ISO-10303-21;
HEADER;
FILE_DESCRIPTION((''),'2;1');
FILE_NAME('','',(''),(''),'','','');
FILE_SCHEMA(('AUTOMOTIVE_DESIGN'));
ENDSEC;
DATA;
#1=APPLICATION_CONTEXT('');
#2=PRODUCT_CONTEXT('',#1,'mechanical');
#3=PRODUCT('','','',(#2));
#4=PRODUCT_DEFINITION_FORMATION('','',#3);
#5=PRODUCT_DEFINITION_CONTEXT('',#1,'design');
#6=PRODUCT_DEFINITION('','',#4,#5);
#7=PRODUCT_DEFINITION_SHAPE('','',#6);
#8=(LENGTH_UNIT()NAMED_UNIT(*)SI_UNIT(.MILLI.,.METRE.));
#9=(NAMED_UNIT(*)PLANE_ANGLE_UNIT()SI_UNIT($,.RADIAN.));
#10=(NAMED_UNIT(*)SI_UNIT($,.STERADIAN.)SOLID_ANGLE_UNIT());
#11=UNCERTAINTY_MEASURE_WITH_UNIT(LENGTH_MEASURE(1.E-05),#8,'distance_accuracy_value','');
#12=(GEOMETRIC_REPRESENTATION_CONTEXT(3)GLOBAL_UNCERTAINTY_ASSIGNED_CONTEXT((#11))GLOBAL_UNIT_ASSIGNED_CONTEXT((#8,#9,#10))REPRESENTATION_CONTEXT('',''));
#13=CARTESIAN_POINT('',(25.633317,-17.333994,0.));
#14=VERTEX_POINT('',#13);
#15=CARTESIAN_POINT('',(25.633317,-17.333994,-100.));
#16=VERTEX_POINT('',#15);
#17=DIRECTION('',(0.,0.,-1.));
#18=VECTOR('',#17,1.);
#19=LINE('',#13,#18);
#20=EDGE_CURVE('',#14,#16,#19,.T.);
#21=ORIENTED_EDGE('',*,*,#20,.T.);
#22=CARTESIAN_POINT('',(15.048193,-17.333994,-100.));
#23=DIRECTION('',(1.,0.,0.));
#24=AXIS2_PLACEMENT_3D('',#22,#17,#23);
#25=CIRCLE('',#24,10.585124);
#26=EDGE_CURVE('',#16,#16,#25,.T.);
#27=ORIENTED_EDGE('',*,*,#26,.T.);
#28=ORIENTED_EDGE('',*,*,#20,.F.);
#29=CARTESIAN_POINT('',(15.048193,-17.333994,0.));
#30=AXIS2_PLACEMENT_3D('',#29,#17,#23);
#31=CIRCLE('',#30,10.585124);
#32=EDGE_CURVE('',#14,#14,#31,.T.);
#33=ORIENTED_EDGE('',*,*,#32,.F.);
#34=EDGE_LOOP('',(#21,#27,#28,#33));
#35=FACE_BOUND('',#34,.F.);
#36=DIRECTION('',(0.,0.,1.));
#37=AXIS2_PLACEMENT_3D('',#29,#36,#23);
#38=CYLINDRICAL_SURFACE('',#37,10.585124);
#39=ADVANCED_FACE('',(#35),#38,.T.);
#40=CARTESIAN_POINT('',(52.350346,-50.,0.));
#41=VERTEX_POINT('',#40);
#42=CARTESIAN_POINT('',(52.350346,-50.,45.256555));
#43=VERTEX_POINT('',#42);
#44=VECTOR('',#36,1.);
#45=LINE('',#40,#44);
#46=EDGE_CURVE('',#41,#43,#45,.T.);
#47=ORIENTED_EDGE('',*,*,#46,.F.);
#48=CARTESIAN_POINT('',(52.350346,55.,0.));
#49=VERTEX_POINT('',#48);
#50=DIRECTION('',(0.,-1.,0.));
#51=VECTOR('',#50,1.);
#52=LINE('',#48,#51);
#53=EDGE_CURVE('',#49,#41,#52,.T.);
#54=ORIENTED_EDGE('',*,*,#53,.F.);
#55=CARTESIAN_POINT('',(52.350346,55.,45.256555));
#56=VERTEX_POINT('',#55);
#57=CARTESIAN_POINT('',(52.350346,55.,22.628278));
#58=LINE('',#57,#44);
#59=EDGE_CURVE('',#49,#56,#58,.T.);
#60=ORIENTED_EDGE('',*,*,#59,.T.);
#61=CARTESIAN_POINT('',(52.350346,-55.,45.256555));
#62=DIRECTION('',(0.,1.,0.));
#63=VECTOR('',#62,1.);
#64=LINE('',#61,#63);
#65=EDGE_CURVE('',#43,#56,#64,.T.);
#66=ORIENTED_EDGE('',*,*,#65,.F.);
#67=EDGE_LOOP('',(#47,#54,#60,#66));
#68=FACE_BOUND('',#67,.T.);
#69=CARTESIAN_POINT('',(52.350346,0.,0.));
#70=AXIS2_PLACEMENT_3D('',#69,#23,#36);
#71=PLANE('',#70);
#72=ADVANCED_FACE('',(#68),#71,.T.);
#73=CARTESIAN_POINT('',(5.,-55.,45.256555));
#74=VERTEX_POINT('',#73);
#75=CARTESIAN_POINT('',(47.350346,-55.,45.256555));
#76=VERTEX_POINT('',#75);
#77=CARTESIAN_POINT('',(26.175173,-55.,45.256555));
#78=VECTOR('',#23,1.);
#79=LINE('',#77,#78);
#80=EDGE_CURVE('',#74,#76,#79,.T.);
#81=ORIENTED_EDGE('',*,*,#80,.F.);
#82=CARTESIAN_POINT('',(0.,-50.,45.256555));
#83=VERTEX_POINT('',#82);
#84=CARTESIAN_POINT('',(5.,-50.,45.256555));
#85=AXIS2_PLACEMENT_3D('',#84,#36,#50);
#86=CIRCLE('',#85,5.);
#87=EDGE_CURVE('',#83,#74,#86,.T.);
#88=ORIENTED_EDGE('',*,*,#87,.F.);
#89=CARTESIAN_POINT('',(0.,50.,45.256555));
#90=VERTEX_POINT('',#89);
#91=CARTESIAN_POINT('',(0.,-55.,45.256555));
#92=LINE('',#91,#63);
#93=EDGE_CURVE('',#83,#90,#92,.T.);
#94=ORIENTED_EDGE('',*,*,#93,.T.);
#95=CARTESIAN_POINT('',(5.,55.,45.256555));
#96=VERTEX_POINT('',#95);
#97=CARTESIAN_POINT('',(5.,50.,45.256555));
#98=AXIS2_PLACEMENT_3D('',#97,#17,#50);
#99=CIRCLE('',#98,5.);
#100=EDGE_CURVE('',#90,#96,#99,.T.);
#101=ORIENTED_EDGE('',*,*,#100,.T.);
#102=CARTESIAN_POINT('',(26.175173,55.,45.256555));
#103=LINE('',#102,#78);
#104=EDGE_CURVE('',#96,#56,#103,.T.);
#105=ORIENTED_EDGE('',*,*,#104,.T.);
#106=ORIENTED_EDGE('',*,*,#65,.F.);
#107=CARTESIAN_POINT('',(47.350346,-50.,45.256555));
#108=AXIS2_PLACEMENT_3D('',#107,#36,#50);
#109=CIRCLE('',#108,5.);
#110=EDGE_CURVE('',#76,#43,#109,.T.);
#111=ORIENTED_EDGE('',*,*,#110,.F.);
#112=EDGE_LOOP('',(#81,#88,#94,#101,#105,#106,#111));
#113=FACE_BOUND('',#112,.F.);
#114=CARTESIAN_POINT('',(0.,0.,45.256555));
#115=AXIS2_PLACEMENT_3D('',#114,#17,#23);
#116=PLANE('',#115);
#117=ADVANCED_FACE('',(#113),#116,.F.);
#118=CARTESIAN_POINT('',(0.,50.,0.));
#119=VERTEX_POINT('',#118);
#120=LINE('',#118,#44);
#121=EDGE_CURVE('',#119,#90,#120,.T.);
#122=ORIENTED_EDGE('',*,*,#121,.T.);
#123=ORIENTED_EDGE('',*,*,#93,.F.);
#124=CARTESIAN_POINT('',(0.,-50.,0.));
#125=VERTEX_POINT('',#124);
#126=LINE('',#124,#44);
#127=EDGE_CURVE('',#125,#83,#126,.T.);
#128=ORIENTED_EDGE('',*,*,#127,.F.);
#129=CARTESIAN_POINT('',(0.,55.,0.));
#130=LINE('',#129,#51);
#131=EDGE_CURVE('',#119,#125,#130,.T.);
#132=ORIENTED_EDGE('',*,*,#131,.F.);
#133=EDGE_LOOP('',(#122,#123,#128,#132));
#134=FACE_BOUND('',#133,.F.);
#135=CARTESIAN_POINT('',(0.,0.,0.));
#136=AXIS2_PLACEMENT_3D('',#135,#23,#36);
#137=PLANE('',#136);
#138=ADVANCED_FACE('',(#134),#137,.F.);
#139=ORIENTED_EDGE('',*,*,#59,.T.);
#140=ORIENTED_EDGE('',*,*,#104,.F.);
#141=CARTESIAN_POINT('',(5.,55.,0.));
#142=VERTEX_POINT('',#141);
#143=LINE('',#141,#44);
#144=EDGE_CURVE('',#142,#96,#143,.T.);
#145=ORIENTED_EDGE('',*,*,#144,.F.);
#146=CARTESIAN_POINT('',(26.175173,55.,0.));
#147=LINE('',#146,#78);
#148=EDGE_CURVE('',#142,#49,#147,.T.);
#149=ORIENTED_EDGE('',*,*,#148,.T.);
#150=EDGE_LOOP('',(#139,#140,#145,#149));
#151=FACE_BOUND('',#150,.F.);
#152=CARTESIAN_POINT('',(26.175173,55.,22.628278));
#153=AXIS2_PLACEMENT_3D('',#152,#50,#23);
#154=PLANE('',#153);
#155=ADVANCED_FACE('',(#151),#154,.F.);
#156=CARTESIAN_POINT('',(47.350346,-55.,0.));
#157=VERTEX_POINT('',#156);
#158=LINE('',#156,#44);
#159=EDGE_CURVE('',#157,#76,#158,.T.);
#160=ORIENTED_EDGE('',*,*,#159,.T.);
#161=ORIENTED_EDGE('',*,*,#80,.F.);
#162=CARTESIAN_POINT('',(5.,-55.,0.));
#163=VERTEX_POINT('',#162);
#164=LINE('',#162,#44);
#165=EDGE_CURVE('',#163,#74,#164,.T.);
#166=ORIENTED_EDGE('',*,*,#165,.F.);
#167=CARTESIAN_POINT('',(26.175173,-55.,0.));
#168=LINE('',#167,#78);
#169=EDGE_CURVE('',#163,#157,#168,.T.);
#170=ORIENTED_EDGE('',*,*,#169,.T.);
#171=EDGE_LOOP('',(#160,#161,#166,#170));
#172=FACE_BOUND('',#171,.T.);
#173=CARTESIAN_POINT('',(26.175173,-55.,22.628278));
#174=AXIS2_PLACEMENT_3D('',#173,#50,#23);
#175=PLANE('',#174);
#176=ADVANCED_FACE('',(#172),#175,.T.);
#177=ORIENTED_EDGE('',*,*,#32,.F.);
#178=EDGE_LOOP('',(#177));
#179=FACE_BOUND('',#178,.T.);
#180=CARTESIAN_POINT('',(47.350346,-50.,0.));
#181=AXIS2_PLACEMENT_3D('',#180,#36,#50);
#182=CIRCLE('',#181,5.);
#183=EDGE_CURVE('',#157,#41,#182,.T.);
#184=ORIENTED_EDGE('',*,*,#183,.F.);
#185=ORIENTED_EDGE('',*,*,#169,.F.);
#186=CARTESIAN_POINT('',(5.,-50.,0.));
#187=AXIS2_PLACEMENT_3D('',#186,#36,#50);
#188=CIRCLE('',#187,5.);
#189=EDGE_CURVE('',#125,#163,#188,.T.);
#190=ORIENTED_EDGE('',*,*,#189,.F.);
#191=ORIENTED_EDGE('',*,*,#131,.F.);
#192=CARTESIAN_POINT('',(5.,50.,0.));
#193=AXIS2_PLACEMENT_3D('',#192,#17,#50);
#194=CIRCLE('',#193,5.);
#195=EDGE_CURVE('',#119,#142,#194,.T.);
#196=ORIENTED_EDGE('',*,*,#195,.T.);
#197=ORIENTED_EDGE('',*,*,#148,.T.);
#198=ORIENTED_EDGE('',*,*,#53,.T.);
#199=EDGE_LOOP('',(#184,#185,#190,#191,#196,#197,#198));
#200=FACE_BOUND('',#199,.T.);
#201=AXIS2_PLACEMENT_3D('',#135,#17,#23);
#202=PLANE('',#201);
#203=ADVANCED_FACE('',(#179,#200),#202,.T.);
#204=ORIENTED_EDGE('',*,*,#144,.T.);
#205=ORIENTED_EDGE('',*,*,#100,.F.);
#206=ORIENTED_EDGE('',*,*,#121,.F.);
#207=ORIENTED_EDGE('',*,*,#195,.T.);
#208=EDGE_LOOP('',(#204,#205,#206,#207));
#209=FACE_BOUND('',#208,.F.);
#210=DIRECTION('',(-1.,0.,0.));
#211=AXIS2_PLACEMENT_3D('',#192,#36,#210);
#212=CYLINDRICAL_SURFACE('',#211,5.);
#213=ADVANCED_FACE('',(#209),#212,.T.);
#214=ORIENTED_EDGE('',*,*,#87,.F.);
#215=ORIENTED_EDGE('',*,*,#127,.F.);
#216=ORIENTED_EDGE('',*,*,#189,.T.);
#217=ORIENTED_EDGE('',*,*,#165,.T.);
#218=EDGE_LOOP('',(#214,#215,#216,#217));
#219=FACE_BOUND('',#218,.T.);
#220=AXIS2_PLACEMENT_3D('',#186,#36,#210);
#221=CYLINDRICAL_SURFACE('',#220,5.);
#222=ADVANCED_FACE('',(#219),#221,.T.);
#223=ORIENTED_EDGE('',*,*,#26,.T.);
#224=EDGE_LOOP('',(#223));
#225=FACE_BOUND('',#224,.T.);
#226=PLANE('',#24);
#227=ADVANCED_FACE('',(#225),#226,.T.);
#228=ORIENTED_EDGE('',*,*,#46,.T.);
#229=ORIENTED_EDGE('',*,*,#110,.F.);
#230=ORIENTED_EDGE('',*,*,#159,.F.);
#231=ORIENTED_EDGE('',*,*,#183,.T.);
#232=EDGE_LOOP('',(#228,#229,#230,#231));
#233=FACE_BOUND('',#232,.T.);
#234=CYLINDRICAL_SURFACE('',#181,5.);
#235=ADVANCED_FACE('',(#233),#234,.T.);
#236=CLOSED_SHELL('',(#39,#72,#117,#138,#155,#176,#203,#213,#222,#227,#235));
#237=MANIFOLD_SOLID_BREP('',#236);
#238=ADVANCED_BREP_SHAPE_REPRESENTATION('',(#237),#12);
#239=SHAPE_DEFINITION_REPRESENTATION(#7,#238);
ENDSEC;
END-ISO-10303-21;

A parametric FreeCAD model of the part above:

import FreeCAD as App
import Part
import Sketcher
Q = App.Units.Quantity


def edges_at(feature, points):
    """Names of the edges that pass closest to the given points."""
    edges = feature.Shape.Edges
    near = lambda p: min(range(len(edges)), key=lambda i: edges[i].distToShape(Part.Vertex(*p))[0])
    return sorted({f"Edge{near(p) + 1}" for p in points})


def add_polygon(sketch, points):
    """Adds a closed chain of lines whose ends are joined by coincident constraints."""
    first, n = sketch.GeometryCount, len(points)
    for a, b in zip(points, points[1:] + points[:1]):
        sketch.addGeometry(Part.LineSegment(App.Vector(*a, 0), App.Vector(*b, 0)), False)
    for i in range(n):
        sketch.addConstraint(Sketcher.Constraint("Coincident", first + i, 2, first + (i + 1) % n, 1))

doc = App.newDocument("Part")
body = doc.addObject("PartDesign::Body", "Body")

# Sketch on XZ plane
sketch1 = body.newObject("Sketcher::SketchObject", "Sketch")
sketch1.AttachmentSupport = (doc.getObject("XZ_Plane"), [""])
sketch1.MapMode = "FlatFace"
add_polygon(sketch1, [(0, 45), (0, 0), (52, 0), (52, 45)])  # lines 0-3
sketch1.addConstraint(Sketcher.Constraint("Vertical", 0))
sketch1.addConstraint(Sketcher.Constraint("Horizontal", 1))
sketch1.addConstraint(Sketcher.Constraint("Vertical", 2))
sketch1.addConstraint(Sketcher.Constraint("Horizontal", 3))
sketch1.addConstraint(Sketcher.Constraint("Coincident", 0, 2, -1, 1))
sketch1.addConstraint(Sketcher.Constraint("DistanceX", 1, 1, 1, 2, Q("52.350346 mm")))
sketch1.addConstraint(Sketcher.Constraint("DistanceY", 0, 2, 0, 1, Q("45.256555 mm")))
pad1 = body.newObject("PartDesign::Pad", "Pad")
pad1.Profile = sketch1
pad1.Length = 110
pad1.Midplane = True
doc.recompute()

fillet = body.newObject("PartDesign::Fillet", "Fillet")
fillet.Base = (pad1, edges_at(pad1, [(52.35, -55, 22.628), (0, -55, 22.628), (0, 55, 22.628)]))
fillet.Radius = 5

# Sketch on XY plane
sketch2 = body.newObject("Sketcher::SketchObject", "Sketch001")
sketch2.AttachmentSupport = (doc.getObject("XY_Plane"), [""])
sketch2.MapMode = "FlatFace"
sketch2.addGeometry(Part.Circle(App.Vector(15, -17, 0), App.Vector(0, 0, 1), 11), False)
sketch2.addConstraint(Sketcher.Constraint("Diameter", 0, Q("21.170249 mm")))
sketch2.addConstraint(Sketcher.Constraint("DistanceX", -1, 1, 0, 3, Q("15.048193 mm")))
sketch2.addConstraint(Sketcher.Constraint("DistanceY", 0, 3, -1, 1, Q("17.333994 mm")))
pad2 = body.newObject("PartDesign::Pad", "Pad001")
pad2.Profile = sketch2
pad2.Length = 100
pad2.Reversed = True

doc.recompute()
